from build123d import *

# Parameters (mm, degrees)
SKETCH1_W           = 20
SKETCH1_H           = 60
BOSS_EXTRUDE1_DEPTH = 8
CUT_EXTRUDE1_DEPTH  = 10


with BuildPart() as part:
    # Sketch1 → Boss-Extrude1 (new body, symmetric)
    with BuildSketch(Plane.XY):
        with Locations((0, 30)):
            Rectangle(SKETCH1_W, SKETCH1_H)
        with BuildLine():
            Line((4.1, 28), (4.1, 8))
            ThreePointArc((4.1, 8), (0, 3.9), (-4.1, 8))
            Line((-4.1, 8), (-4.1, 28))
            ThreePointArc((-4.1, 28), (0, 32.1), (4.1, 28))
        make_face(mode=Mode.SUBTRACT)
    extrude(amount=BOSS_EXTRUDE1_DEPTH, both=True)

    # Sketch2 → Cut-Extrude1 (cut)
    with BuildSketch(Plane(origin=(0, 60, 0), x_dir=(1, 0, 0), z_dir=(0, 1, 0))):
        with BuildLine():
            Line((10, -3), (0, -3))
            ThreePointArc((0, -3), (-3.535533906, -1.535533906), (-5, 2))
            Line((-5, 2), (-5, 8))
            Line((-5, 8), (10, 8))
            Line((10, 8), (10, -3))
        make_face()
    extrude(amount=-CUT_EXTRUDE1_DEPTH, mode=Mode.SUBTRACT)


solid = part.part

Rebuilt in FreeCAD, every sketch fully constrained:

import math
import FreeCAD as App
import Part
import Sketcher
from FreeCAD import Vector


def add_polygon(sketch, points):
    """Adds a closed chain of lines whose ends are joined by coincident constraints."""
    first, n = sketch.GeometryCount, len(points)
    for a, b in zip(points, points[1:] + points[:1]):
        sketch.addGeometry(Part.LineSegment(App.Vector(*a, 0), App.Vector(*b, 0)), False)
    for i in range(n):
        sketch.addConstraint(Sketcher.Constraint("Coincident", first + i, 2, first + (i + 1) % n, 1))

doc = App.newDocument("Part")
body = doc.addObject("PartDesign::Body", "Body")

sketch1 = doc.addObject("Sketcher::SketchObject", "Sketch")
body.addObject(sketch1)
sketch1.AttachmentSupport = (doc.XY_Plane, [""])
sketch1.MapMode = "FlatFace"
add_polygon(sketch1, [(-10, 60), (-10, 0), (10, 0), (10, 60)])
sketch1.addGeometry(Part.ArcOfCircle(Part.Circle(Vector(0, 28, 0), Vector(0, 0, 1), 4.1), math.radians(0), math.radians(180)), False)
sketch1.addGeometry(Part.LineSegment(Vector(4.1, 28, 0), Vector(4.1, 8, 0)), False)
sketch1.addGeometry(Part.ArcOfCircle(Part.Circle(Vector(0, 8, 0), Vector(0, 0, 1), 4.1), math.radians(180), math.radians(360)), False)
sketch1.addGeometry(Part.LineSegment(Vector(-4.1, 8, 0), Vector(-4.1, 28, 0)), False)
sketch1.addConstraint([
    Sketcher.Constraint("Tangent", 4, 1, 5, 1),
    Sketcher.Constraint("Tangent", 5, 2, 6, 2),
    Sketcher.Constraint("Tangent", 6, 1, 7, 1),
    Sketcher.Constraint("Tangent", 7, 2, 4, 2),
    Sketcher.Constraint("Vertical", 0),
    Sketcher.Constraint("Horizontal", 1),
    Sketcher.Constraint("Vertical", 2),
    Sketcher.Constraint("Horizontal", 3),
    Sketcher.Constraint("Vertical", 5),
    Sketcher.Constraint("Vertical", 7),
    Sketcher.Constraint("Symmetric", 0, 2, 1, 2, -1, 1),
    Sketcher.Constraint("PointOnObject", 4, 3, -2),
    Sketcher.Constraint("Equal", 3, 5),
    Sketcher.Constraint("Radius", 4, 4.1),
    Sketcher.Constraint("DistanceX", 1, 1, 1, 2, 20.0),
    Sketcher.Constraint("DistanceY", 0, 2, 0, 1, 60.0),
    Sketcher.Constraint("DistanceY", -1, 1, 4, 3, 28.0),
])
pad1 = doc.addObject("PartDesign::Pad", "Pad")
body.addObject(pad1)
pad1.Profile = sketch1
pad1.Length = 16
pad1.Midplane = True

sketch2 = doc.addObject("Sketcher::SketchObject", "Sketch001")
body.addObject(sketch2)
sketch2.AttachmentSupport = (doc.XZ_Plane, [""])
sketch2.MapMode = "FlatFace"
sketch2.AttachmentOffset = App.Placement(Vector(0, 0, -60), App.Rotation())
sketch2.addGeometry([
    Part.LineSegment(Vector(0, 3, 0), Vector(10, 3, 0)),
    Part.LineSegment(Vector(10, 3, 0), Vector(10, -8, 0)),
    Part.LineSegment(Vector(10, -8, 0), Vector(-5, -8, 0)),
    Part.LineSegment(Vector(-5, -8, 0), Vector(-5, -2, 0)),
    Part.ArcOfCircle(Part.Circle(Vector(0, -2, 0), Vector(0, 0, 1), 5), math.radians(90), math.radians(180)),
], False)
sketch2.addConstraint([
    Sketcher.Constraint("Coincident", 0, 2, 1, 1),
    Sketcher.Constraint("Coincident", 1, 2, 2, 1),
    Sketcher.Constraint("Coincident", 2, 2, 3, 1),
    Sketcher.Constraint("Tangent", 3, 2, 4, 2),
    Sketcher.Constraint("Tangent", 4, 1, 0, 1),
    Sketcher.Constraint("Horizontal", 0),
    Sketcher.Constraint("Vertical", 1),
    Sketcher.Constraint("Horizontal", 2),
    Sketcher.Constraint("Vertical", 3),
    Sketcher.Constraint("PointOnObject", 4, 3, -2),
    Sketcher.Constraint("Radius", 4, 5.0),
    Sketcher.Constraint("DistanceX", 0, 1, 0, 2, 10.0),
    Sketcher.Constraint("DistanceY", 1, 2, 1, 1, 11.0),
    Sketcher.Constraint("DistanceY", 4, 3, -1, 1, 2.0),
])
pocket1 = doc.addObject("PartDesign::Pocket", "Pocket")
body.addObject(pocket1)
pocket1.Profile = sketch2
pocket1.Length = 10
pocket1.Reversed = True

doc.recompute()
